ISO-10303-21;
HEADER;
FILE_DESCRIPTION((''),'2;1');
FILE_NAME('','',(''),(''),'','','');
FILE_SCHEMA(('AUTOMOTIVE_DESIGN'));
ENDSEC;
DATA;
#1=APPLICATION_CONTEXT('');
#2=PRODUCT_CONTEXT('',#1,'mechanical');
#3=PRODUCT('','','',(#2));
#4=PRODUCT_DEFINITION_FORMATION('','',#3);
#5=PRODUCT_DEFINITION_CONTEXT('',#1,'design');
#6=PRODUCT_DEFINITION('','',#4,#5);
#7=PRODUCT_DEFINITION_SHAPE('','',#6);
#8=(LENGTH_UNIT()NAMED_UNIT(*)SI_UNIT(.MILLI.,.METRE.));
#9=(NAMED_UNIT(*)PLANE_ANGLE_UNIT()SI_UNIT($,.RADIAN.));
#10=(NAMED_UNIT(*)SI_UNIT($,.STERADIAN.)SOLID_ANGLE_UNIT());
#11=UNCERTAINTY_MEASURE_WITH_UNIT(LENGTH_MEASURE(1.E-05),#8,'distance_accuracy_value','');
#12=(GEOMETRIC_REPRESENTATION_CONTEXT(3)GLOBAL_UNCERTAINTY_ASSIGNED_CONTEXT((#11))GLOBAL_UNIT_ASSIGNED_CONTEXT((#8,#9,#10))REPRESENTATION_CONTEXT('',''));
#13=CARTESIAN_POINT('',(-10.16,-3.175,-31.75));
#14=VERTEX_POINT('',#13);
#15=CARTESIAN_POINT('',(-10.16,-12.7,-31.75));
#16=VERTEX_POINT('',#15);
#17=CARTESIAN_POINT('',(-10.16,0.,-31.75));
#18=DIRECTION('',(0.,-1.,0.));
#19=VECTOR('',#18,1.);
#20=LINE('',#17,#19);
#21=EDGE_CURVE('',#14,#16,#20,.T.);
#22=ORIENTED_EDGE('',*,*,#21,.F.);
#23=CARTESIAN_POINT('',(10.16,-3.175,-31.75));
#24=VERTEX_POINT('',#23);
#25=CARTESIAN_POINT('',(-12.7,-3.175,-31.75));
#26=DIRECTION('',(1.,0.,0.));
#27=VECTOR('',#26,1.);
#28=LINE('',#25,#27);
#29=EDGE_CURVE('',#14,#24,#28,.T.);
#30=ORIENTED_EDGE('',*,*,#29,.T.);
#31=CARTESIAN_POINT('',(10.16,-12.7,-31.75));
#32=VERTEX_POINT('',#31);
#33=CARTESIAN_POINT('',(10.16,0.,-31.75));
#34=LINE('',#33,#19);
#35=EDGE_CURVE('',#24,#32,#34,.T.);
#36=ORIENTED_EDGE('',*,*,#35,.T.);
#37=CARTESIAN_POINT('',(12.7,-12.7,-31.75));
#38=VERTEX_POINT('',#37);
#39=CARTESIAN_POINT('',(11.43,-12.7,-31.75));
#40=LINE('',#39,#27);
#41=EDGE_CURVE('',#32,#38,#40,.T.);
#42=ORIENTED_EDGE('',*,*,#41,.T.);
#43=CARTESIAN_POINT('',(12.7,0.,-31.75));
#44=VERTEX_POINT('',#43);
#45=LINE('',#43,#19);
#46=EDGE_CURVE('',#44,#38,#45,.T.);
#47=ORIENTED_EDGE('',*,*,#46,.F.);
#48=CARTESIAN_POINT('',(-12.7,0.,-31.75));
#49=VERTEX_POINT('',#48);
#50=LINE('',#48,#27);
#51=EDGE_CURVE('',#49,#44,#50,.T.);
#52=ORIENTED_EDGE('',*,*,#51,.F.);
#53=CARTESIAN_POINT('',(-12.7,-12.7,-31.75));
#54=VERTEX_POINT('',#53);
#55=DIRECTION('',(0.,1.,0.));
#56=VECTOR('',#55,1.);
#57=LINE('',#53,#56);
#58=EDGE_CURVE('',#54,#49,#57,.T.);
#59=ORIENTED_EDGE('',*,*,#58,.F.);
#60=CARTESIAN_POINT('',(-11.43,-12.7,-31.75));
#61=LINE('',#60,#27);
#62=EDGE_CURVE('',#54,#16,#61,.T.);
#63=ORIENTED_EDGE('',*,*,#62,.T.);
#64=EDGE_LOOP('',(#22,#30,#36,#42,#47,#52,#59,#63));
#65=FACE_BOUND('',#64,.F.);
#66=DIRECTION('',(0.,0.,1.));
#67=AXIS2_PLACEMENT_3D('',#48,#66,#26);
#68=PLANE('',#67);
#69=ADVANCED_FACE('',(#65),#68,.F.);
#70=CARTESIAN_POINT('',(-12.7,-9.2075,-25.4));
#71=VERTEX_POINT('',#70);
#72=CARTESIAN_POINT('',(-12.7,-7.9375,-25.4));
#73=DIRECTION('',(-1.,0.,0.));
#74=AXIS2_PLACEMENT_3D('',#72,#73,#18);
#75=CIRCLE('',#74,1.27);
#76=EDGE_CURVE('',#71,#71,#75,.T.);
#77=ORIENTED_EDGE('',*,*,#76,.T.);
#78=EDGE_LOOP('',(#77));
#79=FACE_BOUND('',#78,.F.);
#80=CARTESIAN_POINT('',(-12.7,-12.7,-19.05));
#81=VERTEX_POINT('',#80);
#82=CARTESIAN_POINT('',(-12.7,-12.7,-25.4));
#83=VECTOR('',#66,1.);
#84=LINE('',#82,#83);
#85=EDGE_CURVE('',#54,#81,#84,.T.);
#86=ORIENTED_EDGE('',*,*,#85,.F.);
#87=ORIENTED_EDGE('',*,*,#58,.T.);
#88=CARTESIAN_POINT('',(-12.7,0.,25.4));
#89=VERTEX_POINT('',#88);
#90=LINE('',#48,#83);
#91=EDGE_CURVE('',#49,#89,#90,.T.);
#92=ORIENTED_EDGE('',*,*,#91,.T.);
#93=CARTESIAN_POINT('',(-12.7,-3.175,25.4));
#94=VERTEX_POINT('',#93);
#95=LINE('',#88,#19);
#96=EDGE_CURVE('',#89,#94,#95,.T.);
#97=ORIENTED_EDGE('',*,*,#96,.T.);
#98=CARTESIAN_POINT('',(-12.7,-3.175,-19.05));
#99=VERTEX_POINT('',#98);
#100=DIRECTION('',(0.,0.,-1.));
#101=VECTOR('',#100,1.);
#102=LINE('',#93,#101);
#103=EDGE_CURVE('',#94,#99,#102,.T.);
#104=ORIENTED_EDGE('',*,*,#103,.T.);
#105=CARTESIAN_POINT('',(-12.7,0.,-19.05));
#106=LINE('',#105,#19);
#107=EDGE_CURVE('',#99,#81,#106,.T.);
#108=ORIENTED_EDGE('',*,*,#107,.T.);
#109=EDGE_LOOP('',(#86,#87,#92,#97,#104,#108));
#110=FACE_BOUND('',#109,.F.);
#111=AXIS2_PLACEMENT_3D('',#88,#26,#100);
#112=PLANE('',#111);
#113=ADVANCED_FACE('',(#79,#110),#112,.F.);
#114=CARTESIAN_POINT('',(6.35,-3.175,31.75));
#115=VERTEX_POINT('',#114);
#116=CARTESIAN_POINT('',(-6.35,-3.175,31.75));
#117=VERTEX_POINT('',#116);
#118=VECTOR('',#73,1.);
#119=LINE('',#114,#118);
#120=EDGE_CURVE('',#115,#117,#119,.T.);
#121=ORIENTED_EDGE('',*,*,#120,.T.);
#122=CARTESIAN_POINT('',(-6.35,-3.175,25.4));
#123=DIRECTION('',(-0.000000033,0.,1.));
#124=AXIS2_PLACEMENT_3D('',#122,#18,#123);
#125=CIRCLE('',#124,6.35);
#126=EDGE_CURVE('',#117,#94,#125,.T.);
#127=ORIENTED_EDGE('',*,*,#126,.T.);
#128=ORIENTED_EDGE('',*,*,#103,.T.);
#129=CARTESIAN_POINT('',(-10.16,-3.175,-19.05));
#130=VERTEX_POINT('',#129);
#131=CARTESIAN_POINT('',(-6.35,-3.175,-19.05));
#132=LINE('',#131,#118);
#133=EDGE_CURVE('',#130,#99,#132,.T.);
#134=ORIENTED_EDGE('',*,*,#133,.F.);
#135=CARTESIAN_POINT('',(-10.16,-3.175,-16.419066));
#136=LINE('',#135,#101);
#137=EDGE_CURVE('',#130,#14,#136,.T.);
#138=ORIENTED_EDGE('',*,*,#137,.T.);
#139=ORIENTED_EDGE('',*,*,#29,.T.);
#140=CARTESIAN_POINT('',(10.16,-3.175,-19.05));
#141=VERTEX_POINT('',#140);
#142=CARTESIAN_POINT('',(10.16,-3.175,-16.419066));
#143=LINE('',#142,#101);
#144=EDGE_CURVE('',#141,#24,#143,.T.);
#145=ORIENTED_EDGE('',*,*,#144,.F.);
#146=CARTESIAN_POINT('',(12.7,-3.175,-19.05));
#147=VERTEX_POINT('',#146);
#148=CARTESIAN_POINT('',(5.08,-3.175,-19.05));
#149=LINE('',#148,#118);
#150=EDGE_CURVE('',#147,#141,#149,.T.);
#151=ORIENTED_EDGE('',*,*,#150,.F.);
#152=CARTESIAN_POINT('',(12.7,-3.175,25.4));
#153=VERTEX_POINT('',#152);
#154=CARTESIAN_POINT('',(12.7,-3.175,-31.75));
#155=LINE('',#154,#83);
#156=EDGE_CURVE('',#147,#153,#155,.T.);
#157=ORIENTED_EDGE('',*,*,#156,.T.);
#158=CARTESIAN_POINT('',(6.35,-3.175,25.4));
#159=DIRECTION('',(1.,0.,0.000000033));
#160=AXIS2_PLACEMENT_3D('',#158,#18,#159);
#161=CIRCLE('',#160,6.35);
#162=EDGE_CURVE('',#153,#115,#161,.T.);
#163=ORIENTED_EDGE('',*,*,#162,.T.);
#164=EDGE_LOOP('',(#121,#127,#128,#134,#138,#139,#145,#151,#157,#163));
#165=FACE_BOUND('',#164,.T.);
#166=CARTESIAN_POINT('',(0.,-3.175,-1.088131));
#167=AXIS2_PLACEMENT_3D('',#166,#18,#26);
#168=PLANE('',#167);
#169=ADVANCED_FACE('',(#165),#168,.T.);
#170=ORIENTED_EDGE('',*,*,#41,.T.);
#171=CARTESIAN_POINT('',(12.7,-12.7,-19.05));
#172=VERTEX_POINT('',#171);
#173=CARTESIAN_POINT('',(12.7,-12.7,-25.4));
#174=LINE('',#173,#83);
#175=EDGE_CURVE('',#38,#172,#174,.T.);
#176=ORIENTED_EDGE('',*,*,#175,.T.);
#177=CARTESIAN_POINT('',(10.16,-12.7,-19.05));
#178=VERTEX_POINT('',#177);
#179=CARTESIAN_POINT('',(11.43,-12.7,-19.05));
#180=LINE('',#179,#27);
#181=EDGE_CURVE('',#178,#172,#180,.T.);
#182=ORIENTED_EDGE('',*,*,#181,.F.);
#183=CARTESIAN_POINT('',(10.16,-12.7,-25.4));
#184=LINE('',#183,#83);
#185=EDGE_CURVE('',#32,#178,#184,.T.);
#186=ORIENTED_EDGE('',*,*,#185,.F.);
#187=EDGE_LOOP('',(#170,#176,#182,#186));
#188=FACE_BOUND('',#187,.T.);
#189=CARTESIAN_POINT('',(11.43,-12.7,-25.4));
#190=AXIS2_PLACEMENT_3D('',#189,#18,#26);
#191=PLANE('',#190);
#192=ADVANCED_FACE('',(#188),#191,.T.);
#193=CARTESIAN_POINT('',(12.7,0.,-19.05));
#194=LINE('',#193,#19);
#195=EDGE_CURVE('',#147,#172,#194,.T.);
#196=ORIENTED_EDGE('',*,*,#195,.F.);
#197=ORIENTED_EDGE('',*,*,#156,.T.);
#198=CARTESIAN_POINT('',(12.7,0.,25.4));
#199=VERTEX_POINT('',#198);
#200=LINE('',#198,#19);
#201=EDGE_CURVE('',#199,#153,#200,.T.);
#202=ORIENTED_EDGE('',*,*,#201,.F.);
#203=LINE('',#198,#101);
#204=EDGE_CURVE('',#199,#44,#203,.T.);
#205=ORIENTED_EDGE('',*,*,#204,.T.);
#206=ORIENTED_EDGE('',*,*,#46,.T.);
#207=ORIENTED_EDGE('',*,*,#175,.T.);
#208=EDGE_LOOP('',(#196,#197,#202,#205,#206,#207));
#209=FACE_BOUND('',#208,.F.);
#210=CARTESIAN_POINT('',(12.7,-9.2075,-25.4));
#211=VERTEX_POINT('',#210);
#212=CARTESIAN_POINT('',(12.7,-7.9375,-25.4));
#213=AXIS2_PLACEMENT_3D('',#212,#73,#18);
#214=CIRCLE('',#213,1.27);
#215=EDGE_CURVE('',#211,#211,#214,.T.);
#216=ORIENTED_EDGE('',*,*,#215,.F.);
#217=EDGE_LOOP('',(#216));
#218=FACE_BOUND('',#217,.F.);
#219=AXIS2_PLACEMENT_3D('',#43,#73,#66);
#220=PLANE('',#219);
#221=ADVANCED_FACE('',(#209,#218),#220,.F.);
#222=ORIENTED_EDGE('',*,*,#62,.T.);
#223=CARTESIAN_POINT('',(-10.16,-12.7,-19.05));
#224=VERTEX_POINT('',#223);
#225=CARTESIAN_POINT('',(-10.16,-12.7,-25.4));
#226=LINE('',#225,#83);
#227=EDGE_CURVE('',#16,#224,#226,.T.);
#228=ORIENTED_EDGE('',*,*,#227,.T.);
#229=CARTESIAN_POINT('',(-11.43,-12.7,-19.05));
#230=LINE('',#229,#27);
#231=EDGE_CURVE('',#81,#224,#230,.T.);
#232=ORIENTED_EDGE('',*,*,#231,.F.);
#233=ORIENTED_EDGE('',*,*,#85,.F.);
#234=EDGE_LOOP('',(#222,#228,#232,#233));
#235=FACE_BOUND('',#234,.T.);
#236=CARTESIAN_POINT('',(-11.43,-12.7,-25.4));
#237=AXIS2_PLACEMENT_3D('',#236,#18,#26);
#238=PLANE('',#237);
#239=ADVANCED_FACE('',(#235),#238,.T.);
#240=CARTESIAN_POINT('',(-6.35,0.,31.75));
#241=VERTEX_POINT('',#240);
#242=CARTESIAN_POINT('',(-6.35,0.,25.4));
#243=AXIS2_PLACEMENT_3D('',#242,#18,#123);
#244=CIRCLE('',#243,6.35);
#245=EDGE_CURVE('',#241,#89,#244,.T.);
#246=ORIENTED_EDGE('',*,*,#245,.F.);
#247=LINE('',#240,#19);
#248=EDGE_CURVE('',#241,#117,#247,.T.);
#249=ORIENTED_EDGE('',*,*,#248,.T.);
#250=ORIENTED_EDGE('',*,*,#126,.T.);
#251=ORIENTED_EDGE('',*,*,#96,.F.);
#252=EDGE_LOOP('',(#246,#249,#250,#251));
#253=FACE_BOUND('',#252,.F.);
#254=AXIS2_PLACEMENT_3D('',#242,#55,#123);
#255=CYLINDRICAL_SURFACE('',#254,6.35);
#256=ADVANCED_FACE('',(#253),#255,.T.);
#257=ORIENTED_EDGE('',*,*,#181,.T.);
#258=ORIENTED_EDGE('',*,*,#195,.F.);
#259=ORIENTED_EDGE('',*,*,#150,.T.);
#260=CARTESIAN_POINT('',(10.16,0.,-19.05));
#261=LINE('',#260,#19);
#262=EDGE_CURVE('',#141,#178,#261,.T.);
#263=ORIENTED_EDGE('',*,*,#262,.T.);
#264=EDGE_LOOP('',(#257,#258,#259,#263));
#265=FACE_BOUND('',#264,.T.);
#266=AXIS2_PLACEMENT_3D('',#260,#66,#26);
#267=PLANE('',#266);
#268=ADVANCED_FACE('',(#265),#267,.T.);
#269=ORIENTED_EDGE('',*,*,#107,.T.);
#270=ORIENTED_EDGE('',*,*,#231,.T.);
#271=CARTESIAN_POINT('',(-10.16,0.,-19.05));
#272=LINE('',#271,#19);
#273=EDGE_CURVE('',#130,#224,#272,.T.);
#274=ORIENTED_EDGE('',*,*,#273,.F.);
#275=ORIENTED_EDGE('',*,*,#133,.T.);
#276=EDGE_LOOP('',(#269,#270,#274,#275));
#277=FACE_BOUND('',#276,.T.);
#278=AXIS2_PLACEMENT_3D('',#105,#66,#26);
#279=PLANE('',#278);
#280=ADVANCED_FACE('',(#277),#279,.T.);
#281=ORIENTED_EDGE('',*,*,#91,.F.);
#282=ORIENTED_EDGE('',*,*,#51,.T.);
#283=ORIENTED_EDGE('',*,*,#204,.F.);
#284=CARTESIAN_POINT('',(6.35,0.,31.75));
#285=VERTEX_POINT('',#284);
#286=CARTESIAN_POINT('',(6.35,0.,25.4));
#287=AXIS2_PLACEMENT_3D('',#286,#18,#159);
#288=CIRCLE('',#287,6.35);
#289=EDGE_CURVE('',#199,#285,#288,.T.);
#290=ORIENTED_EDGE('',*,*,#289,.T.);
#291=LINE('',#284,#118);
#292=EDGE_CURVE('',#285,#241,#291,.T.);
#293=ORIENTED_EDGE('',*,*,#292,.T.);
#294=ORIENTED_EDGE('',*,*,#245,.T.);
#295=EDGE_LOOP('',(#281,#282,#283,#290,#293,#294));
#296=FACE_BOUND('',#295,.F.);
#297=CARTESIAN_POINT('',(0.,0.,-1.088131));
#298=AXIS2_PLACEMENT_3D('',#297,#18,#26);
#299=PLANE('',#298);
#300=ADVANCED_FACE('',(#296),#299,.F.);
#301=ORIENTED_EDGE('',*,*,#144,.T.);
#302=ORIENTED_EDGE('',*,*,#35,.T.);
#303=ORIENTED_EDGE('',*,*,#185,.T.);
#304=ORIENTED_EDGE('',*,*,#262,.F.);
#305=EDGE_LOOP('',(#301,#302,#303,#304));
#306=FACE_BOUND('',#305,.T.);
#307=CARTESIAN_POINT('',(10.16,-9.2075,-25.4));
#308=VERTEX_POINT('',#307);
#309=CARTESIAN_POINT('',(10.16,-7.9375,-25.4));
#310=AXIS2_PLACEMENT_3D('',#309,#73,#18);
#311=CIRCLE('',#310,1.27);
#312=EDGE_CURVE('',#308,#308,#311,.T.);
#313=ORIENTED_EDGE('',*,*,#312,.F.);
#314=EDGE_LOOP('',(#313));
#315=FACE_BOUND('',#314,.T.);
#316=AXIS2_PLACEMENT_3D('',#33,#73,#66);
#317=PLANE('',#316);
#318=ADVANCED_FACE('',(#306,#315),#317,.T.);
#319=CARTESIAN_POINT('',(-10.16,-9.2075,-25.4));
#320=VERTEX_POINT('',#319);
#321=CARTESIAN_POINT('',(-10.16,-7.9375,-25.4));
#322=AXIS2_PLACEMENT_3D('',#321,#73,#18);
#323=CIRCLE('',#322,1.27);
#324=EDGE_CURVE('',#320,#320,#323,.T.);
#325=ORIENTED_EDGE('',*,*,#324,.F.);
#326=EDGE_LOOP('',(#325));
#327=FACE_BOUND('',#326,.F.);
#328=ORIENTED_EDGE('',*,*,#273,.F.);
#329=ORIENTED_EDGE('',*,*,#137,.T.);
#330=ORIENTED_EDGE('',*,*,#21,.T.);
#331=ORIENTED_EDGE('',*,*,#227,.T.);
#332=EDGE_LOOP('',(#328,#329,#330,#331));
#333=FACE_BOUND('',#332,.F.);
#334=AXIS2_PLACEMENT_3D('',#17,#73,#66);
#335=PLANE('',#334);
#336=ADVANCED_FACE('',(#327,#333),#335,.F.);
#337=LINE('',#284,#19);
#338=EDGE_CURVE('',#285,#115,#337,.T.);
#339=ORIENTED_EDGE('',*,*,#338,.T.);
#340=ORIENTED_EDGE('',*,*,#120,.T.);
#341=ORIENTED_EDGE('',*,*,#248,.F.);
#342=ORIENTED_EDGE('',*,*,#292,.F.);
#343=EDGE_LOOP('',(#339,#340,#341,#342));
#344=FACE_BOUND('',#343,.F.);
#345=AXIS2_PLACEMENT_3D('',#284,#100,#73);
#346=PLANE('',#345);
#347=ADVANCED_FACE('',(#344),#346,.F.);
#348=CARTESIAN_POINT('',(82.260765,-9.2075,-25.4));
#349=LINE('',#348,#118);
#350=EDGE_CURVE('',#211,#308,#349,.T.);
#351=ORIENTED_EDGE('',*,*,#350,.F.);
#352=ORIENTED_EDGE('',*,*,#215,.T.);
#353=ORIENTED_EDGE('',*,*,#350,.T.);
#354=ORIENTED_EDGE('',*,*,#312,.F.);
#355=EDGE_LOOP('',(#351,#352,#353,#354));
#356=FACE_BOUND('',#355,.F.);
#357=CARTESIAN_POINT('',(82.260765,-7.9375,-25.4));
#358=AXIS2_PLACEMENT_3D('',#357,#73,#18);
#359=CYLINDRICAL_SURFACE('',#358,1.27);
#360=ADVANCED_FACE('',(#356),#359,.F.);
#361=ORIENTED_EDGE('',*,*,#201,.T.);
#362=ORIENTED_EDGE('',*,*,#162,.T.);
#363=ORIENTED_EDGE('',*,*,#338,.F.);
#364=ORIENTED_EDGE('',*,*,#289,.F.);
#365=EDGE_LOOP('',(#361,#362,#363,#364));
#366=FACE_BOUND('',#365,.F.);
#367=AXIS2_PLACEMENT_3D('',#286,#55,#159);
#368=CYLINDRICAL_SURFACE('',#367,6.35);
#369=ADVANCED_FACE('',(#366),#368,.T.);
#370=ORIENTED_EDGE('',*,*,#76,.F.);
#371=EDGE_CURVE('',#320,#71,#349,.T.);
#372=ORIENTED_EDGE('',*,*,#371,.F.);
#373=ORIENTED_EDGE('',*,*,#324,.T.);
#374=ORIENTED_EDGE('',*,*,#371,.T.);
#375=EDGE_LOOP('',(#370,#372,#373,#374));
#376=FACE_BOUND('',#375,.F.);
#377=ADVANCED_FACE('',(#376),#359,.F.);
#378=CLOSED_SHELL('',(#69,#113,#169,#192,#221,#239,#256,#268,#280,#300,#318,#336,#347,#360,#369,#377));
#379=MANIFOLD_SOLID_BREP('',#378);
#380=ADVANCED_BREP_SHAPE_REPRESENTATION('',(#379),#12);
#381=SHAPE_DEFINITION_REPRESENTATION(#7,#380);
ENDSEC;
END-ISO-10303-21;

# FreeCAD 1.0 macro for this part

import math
import FreeCAD as App
import Part
import Sketcher
from FreeCAD import Vector
Q = App.Units.Quantity

doc = App.newDocument("Part")
body = doc.addObject("PartDesign::Body", "Body")

sketch1 = body.newObject("Sketcher::SketchObject", "Sketch")
sketch1.AttachmentSupport = (doc.getObject("XZ_Plane"), [""])
sketch1.MapMode = "FlatFace"
sketch1.addGeometry([
    Part.LineSegment(Vector(-12.7, -31.75, 0), Vector(12.7, -31.75, 0)),
    Part.LineSegment(Vector(12.7, -31.75, 0), Vector(12.7, 25.4, 0)),
    Part.ArcOfCircle(Part.Circle(Vector(6.35, 25.4, 0), Vector(0, 0, 1), 6.35), math.radians(0.000002), math.radians(89.999998)),
    Part.LineSegment(Vector(6.35, 31.75, 0), Vector(-6.35, 31.75, 0)),
    Part.ArcOfCircle(Part.Circle(Vector(-6.35, 25.4, 0), Vector(0, 0, 1), 6.35), math.radians(90.000002), math.radians(179.999998)),
    Part.LineSegment(Vector(-12.7, 25.4, 0), Vector(-12.7, -31.75, 0)),
], False)
sketch1.addConstraint([
    Sketcher.Constraint("Coincident", 0, 2, 1, 1),
    Sketcher.Constraint("Tangent", 1, 2, 2, 1),
    Sketcher.Constraint("Tangent", 2, 2, 3, 1),
    Sketcher.Constraint("Tangent", 3, 2, 4, 1),
    Sketcher.Constraint("Tangent", 4, 2, 5, 1),
    Sketcher.Constraint("Coincident", 5, 2, 0, 1),
    Sketcher.Constraint("Horizontal", 0),
    Sketcher.Constraint("Vertical", 1),
    Sketcher.Constraint("Horizontal", 3),
    Sketcher.Constraint("Vertical", 5),
    Sketcher.Constraint("Equal", 2, 4),
    Sketcher.Constraint("DistanceX", 0, 1, 0, 2, Q("1 in")),
    Sketcher.Constraint("Radius", 2, Q("0.25 in")),
    Sketcher.Constraint("DistanceY", -1, 1, 2, 3, Q("1 in")),
    Sketcher.Constraint("DistanceY", 1, 1, 1, 2, Q("2.25 in")),
    Sketcher.Constraint("DistanceX", -1, 1, 0, 2, Q("0.5 in")),
])
pad1 = body.newObject("PartDesign::Pad", "Pad")
pad1.Profile = sketch1
pad1.Length = Q("0.125 in")

sketch2 = body.newObject("Sketcher::SketchObject", "Sketch001")
sketch2.AttachmentSupport = (doc.getObject("XZ_Plane"), [""])
sketch2.MapMode = "FlatFace"
sketch2.addGeometry([
    Part.LineSegment(Vector(10.16, -19.05, 0), Vector(10.16, -31.75, 0)),
    Part.LineSegment(Vector(10.16, -31.75, 0), Vector(12.7, -31.75, 0)),
    Part.LineSegment(Vector(12.7, -31.75, 0), Vector(12.7, -19.05, 0)),
    Part.LineSegment(Vector(12.7, -19.05, 0), Vector(10.16, -19.05, 0)),
    Part.LineSegment(Vector(-12.7, -19.05, 0), Vector(-12.7, -31.75, 0)),
    Part.LineSegment(Vector(-12.7, -31.75, 0), Vector(-10.16, -31.75, 0)),
    Part.LineSegment(Vector(-10.16, -31.75, 0), Vector(-10.16, -19.05, 0)),
    Part.LineSegment(Vector(-10.16, -19.05, 0), Vector(-12.7, -19.05, 0)),
], False)
sketch2.addConstraint([
    Sketcher.Constraint("Coincident", 0, 2, 1, 1),
    Sketcher.Constraint("Coincident", 1, 2, 2, 1),
    Sketcher.Constraint("Coincident", 2, 2, 3, 1),
    Sketcher.Constraint("Coincident", 3, 2, 0, 1),
    Sketcher.Constraint("Coincident", 4, 2, 5, 1),
    Sketcher.Constraint("Coincident", 5, 2, 6, 1),
    Sketcher.Constraint("Coincident", 6, 2, 7, 1),
    Sketcher.Constraint("Coincident", 7, 2, 4, 1),
    Sketcher.Constraint("Vertical", 0),
    Sketcher.Constraint("Horizontal", 1),
    Sketcher.Constraint("Vertical", 2),
    Sketcher.Constraint("Horizontal", 3),
    Sketcher.Constraint("Vertical", 4),
    Sketcher.Constraint("Horizontal", 5),
    Sketcher.Constraint("Vertical", 6),
    Sketcher.Constraint("Horizontal", 7),
    Sketcher.Constraint("Symmetric", 1, 2, 4, 2, -2),
    Sketcher.Constraint("Symmetric", 3, 2, 6, 2, -2),
    Sketcher.Constraint("DistanceX", 1, 1, 1, 2, Q("0.1 in")),
    Sketcher.Constraint("DistanceY", 0, 2, 0, 1, Q("0.5 in")),
    Sketcher.Constraint("DistanceX", 4, 2, 1, 2, Q("1 in")),
    Sketcher.Constraint("DistanceY", 0, 2, -1, 1, Q("1.25 in")),
])
pad2 = body.newObject("PartDesign::Pad", "Pad001")
pad2.Profile = sketch2
pad2.Length = Q("0.5 in")

sketch3 = body.newObject("Sketcher::SketchObject", "Sketch002")
sketch3.AttachmentSupport = (doc.getObject("YZ_Plane"), [""])
sketch3.MapMode = "FlatFace"
sketch3.AttachmentOffset = App.Placement(Vector(0, 0, 0.5 * 25.4), App.Rotation())
sketch3.addGeometry(Part.Circle(Vector(-7.9375, -25.4, 0), Vector(0, 0, 1), 1.27), False)
sketch3.addConstraint([
    Sketcher.Constraint("Diameter", 0, Q("0.1 in")),
    Sketcher.Constraint("DistanceY", 0, 3, -1, 1, Q("1 in")),
    Sketcher.Constraint("DistanceX", 0, 3, -1, 1, Q("0.3125 in")),
])
doc.recompute()
hole = body.newObject("PartDesign::Hole", "Hole")
hole.Profile = sketch3
hole.ThreadType = "None"
hole.Diameter = Q("0.1 in")
hole.DepthType = "ThroughAll"

doc.recompute()
